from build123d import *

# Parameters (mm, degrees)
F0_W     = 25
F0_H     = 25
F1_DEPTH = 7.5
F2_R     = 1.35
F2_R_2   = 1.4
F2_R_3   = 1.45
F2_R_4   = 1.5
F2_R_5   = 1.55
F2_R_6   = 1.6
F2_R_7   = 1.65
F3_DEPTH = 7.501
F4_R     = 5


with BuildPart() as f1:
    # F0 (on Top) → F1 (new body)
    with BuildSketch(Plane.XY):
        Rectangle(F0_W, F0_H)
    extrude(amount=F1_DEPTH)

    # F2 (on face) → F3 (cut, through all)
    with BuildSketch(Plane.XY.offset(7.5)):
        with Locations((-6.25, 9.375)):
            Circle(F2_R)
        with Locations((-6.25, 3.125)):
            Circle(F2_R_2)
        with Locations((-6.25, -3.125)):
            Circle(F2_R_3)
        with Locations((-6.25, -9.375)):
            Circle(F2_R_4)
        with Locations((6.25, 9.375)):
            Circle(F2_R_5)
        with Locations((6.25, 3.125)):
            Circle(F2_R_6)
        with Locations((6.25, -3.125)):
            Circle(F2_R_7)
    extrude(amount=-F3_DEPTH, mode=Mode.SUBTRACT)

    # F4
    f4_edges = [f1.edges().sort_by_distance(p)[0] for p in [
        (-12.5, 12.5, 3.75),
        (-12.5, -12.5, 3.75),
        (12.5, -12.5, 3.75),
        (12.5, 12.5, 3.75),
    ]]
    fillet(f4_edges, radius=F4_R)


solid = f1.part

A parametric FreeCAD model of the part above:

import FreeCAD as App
import Part
import Sketcher

V = App.Vector


def edges_at(feature, points):
    """Names of the edges that pass closest to the given points."""
    edges = feature.Shape.Edges
    near = lambda p: min(range(len(edges)), key=lambda i: edges[i].distToShape(Part.Vertex(*p))[0])
    return sorted({f"Edge{near(p) + 1}" for p in points})

doc = App.newDocument("Part")
body = doc.addObject("PartDesign::Body", "Body")

sketch1 = body.newObject("Sketcher::SketchObject", "Sketch")
sketch1.AttachmentSupport = (doc.getObject("XY_Plane"), [""])
sketch1.MapMode = "FlatFace"
sketch1.addGeometry([
    Part.LineSegment(V(-12, 12, 0), V(-12, -12, 0)),
    Part.LineSegment(V(-12, -12, 0), V(12, -12, 0)),
    Part.LineSegment(V(12, -12, 0), V(12, 12, 0)),
    Part.LineSegment(V(12, 12, 0), V(-12, 12, 0)),
], False)
sketch1.addConstraint([
    Sketcher.Constraint("Coincident", 0, 2, 1, 1),
    Sketcher.Constraint("Coincident", 1, 2, 2, 1),
    Sketcher.Constraint("Coincident", 2, 2, 3, 1),
    Sketcher.Constraint("Coincident", 3, 2, 0, 1),
    Sketcher.Constraint("Vertical", 0),
    Sketcher.Constraint("Horizontal", 1),
    Sketcher.Constraint("Vertical", 2),
    Sketcher.Constraint("Horizontal", 3),
    Sketcher.Constraint("Symmetric", 0, 2, 2, 2, -1, 1),
    Sketcher.Constraint("Equal", 3, 0),
    Sketcher.Constraint("DistanceX", 1, 1, 1, 2, 25.0),
])
pad1 = body.newObject("PartDesign::Pad", "Pad")
pad1.Profile = sketch1
pad1.Length = 7.5

sketch2 = body.newObject("Sketcher::SketchObject", "Sketch001")
sketch2.AttachmentSupport = (doc.getObject("XY_Plane"), [""])
sketch2.MapMode = "FlatFace"
sketch2.AttachmentOffset = App.Placement(V(0, 0, 7.5), App.Rotation())
sketch2.addGeometry([
    Part.Circle(V(-6.2, 9.4, 0), V(0, 0, 1), 1.4),
    Part.Circle(V(-6.2, 3.1, 0), V(0, 0, 1), 1.4),
    Part.Circle(V(-6.2, -3.1, 0), V(0, 0, 1), 1.4),
    Part.Circle(V(-6.2, -9.4, 0), V(0, 0, 1), 1.5),
    Part.Circle(V(6.2, 9.4, 0), V(0, 0, 1), 1.6),
    Part.Circle(V(6.2, 3.1, 0), V(0, 0, 1), 1.6),
    Part.Circle(V(6.2, -3.1, 0), V(0, 0, 1), 1.6),
], False)
sketch2.addConstraint([
    Sketcher.Constraint("Symmetric", 3, 3, 4, 3, -1, 1),
    Sketcher.Constraint("Symmetric", 2, 3, 5, 3, -1, 1),
    Sketcher.Constraint("Symmetric", 1, 3, 6, 3, -1, 1),
    Sketcher.Constraint("Symmetric", 0, 3, 4, 3, -2),
    Sketcher.Constraint("Symmetric", 1, 3, 5, 3, -2),
    Sketcher.Constraint("Vertical", 0, 3, 1, 3),
    Sketcher.Constraint("Diameter", 3, 3.0),
    Sketcher.Constraint("Diameter", 0, 2.7),
    Sketcher.Constraint("Diameter", 1, 2.8),
    Sketcher.Constraint("Diameter", 2, 2.9),
    Sketcher.Constraint("Diameter", 4, 3.1),
    Sketcher.Constraint("Diameter", 5, 3.2),
    Sketcher.Constraint("Diameter", 6, 3.3),
    Sketcher.Constraint("DistanceY", 2, 3, 0, 3, 12.5),
    Sketcher.Constraint("DistanceX", 0, 3, 4, 3, 12.5),
    Sketcher.Constraint("DistanceY", 1, 3, 0, 3, 6.25),
])
pocket1 = body.newObject("PartDesign::Pocket", "Pocket")
pocket1.Profile = sketch2
pocket1.Type = "ThroughAll"
doc.recompute()

fillet = body.newObject("PartDesign::Fillet", "Fillet")
fillet.Base = (pocket1, edges_at(pocket1, [
    (-12.5, 12.5, 3.75),
    (-12.5, -12.5, 3.75),
    (12.5, -12.5, 3.75),
    (12.5, 12.5, 3.75),
]))
fillet.Radius = 5

doc.recompute()
